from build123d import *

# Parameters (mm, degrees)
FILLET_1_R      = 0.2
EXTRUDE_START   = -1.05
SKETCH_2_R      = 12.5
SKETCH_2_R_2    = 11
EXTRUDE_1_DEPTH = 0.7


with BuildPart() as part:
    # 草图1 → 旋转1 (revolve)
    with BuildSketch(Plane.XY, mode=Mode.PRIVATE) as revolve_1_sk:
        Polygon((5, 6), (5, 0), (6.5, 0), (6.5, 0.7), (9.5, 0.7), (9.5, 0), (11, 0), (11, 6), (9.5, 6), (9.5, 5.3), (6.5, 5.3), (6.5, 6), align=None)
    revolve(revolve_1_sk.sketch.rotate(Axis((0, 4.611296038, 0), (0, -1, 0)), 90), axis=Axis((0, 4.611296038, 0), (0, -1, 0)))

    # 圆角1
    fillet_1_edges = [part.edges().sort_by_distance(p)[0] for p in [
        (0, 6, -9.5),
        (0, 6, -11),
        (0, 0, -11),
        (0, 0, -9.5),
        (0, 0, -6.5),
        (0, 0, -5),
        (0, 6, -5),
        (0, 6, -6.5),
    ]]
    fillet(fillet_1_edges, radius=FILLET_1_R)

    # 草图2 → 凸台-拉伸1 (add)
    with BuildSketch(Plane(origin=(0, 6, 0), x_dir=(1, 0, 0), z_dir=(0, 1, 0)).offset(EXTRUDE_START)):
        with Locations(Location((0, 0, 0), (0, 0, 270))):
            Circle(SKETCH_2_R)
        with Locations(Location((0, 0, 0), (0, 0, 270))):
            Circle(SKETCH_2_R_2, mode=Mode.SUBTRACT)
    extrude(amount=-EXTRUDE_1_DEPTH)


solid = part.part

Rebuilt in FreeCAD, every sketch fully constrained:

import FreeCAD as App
import Part
import Sketcher

V = App.Vector
Q = App.Units.Quantity


def edges_at(feature, points):
    """Names of the edges that pass closest to the given points."""
    edges = feature.Shape.Edges
    near = lambda p: min(range(len(edges)), key=lambda i: edges[i].distToShape(Part.Vertex(*p))[0])
    return sorted({f"Edge{near(p) + 1}" for p in points})


def add_polygon(sketch, points):
    """Adds a closed chain of lines whose ends are joined by coincident constraints."""
    first, n = sketch.GeometryCount, len(points)
    for a, b in zip(points, points[1:] + points[:1]):
        sketch.addGeometry(Part.LineSegment(App.Vector(*a, 0), App.Vector(*b, 0)), False)
    for i in range(n):
        sketch.addConstraint(Sketcher.Constraint("Coincident", first + i, 2, first + (i + 1) % n, 1))

doc = App.newDocument("Part")
body = doc.addObject("PartDesign::Body", "Body")

# Sketch on XY plane
sketch1 = body.newObject("Sketcher::SketchObject", "Sketch")
sketch1.AttachmentSupport = (doc.getObject("XY_Plane"), [""])
sketch1.MapMode = "FlatFace"
add_polygon(sketch1, [(5, 6), (5, 0), (6.5, 0), (6.5, 0.7), (9.5, 0.7), (9.5, 0), (11, 0), (11, 6), (9.5, 6), (9.5, 5.3), (6.5, 5.3), (6.5, 6)])  # lines 0-11
sketch1.addConstraint([
    Sketcher.Constraint("Vertical", 0),
    Sketcher.Constraint("Horizontal", 1),
    Sketcher.Constraint("Vertical", 2),
    Sketcher.Constraint("Horizontal", 3),
    Sketcher.Constraint("Vertical", 4),
    Sketcher.Constraint("Horizontal", 5),
    Sketcher.Constraint("Vertical", 6),
    Sketcher.Constraint("Horizontal", 7),
    Sketcher.Constraint("Vertical", 8),
    Sketcher.Constraint("Horizontal", 9),
    Sketcher.Constraint("Vertical", 10),
    Sketcher.Constraint("Horizontal", 11),
    Sketcher.Constraint("PointOnObject", 0, 2, -1),
    Sketcher.Constraint("PointOnObject", 4, 2, -1),
    Sketcher.Constraint("Horizontal", 7, 2, 10, 2),
    Sketcher.Constraint("Vertical", 4, 2, 7, 2),
    Sketcher.Constraint("Vertical", 2, 2, 9, 2),
    Sketcher.Constraint("Equal", 1, 5),
    Sketcher.Constraint("Equal", 4, 8),
    Sketcher.Constraint("DistanceX", 3, 1, 3, 2, Q("3 mm")),
    Sketcher.Constraint("DistanceY", 0, 2, 0, 1, Q("6 mm")),
    Sketcher.Constraint("DistanceX", 1, 1, 1, 2, Q("1.5 mm")),
    Sketcher.Constraint("DistanceY", 2, 1, 2, 2, Q("0.7 mm")),
    Sketcher.Constraint("DistanceX", -1, 1, 0, 2, Q("5 mm")),
])
revolution = body.newObject("PartDesign::Revolution", "Revolution")
revolution.Profile = sketch1
revolution.ReferenceAxis = (sketch1, ["V_Axis"])
revolution.Angle = 360
doc.recompute()

fillet = body.newObject("PartDesign::Fillet", "Fillet")
fillet.Base = (revolution, edges_at(revolution, [
    (0, 6, -9.5),
    (0, 6, -11),
    (0, 0, -11),
    (0, 0, -9.5),
    (0, 0, -6.5),
    (0, 0, -5),
    (0, 6, -5),
    (0, 6, -6.5),
]))
fillet.Radius = 0.2

# Sketch on XZ plane
sketch2 = body.newObject("Sketcher::SketchObject", "Sketch001")
sketch2.AttachmentSupport = (doc.getObject("XZ_Plane"), [""])
sketch2.MapMode = "FlatFace"
sketch2.AttachmentOffset = App.Placement(V(0, 0, -4.95), App.Rotation())
sketch2.addGeometry([
    Part.Circle(V(0, 0, 0), V(0, 0, 1), 12),
    Part.Circle(V(0, 0, 0), V(0, 0, 1), 11),
], False)
sketch2.addConstraint([
    Sketcher.Constraint("Coincident", 0, 3, -1, 1),
    Sketcher.Constraint("Coincident", 1, 3, -1, 1),
    Sketcher.Constraint("Diameter", 0, Q("25 mm")),
    Sketcher.Constraint("Diameter", 1, Q("22 mm")),
])
pad1 = body.newObject("PartDesign::Pad", "Pad")
pad1.Profile = sketch2
pad1.Length = 0.7

doc.recompute()
